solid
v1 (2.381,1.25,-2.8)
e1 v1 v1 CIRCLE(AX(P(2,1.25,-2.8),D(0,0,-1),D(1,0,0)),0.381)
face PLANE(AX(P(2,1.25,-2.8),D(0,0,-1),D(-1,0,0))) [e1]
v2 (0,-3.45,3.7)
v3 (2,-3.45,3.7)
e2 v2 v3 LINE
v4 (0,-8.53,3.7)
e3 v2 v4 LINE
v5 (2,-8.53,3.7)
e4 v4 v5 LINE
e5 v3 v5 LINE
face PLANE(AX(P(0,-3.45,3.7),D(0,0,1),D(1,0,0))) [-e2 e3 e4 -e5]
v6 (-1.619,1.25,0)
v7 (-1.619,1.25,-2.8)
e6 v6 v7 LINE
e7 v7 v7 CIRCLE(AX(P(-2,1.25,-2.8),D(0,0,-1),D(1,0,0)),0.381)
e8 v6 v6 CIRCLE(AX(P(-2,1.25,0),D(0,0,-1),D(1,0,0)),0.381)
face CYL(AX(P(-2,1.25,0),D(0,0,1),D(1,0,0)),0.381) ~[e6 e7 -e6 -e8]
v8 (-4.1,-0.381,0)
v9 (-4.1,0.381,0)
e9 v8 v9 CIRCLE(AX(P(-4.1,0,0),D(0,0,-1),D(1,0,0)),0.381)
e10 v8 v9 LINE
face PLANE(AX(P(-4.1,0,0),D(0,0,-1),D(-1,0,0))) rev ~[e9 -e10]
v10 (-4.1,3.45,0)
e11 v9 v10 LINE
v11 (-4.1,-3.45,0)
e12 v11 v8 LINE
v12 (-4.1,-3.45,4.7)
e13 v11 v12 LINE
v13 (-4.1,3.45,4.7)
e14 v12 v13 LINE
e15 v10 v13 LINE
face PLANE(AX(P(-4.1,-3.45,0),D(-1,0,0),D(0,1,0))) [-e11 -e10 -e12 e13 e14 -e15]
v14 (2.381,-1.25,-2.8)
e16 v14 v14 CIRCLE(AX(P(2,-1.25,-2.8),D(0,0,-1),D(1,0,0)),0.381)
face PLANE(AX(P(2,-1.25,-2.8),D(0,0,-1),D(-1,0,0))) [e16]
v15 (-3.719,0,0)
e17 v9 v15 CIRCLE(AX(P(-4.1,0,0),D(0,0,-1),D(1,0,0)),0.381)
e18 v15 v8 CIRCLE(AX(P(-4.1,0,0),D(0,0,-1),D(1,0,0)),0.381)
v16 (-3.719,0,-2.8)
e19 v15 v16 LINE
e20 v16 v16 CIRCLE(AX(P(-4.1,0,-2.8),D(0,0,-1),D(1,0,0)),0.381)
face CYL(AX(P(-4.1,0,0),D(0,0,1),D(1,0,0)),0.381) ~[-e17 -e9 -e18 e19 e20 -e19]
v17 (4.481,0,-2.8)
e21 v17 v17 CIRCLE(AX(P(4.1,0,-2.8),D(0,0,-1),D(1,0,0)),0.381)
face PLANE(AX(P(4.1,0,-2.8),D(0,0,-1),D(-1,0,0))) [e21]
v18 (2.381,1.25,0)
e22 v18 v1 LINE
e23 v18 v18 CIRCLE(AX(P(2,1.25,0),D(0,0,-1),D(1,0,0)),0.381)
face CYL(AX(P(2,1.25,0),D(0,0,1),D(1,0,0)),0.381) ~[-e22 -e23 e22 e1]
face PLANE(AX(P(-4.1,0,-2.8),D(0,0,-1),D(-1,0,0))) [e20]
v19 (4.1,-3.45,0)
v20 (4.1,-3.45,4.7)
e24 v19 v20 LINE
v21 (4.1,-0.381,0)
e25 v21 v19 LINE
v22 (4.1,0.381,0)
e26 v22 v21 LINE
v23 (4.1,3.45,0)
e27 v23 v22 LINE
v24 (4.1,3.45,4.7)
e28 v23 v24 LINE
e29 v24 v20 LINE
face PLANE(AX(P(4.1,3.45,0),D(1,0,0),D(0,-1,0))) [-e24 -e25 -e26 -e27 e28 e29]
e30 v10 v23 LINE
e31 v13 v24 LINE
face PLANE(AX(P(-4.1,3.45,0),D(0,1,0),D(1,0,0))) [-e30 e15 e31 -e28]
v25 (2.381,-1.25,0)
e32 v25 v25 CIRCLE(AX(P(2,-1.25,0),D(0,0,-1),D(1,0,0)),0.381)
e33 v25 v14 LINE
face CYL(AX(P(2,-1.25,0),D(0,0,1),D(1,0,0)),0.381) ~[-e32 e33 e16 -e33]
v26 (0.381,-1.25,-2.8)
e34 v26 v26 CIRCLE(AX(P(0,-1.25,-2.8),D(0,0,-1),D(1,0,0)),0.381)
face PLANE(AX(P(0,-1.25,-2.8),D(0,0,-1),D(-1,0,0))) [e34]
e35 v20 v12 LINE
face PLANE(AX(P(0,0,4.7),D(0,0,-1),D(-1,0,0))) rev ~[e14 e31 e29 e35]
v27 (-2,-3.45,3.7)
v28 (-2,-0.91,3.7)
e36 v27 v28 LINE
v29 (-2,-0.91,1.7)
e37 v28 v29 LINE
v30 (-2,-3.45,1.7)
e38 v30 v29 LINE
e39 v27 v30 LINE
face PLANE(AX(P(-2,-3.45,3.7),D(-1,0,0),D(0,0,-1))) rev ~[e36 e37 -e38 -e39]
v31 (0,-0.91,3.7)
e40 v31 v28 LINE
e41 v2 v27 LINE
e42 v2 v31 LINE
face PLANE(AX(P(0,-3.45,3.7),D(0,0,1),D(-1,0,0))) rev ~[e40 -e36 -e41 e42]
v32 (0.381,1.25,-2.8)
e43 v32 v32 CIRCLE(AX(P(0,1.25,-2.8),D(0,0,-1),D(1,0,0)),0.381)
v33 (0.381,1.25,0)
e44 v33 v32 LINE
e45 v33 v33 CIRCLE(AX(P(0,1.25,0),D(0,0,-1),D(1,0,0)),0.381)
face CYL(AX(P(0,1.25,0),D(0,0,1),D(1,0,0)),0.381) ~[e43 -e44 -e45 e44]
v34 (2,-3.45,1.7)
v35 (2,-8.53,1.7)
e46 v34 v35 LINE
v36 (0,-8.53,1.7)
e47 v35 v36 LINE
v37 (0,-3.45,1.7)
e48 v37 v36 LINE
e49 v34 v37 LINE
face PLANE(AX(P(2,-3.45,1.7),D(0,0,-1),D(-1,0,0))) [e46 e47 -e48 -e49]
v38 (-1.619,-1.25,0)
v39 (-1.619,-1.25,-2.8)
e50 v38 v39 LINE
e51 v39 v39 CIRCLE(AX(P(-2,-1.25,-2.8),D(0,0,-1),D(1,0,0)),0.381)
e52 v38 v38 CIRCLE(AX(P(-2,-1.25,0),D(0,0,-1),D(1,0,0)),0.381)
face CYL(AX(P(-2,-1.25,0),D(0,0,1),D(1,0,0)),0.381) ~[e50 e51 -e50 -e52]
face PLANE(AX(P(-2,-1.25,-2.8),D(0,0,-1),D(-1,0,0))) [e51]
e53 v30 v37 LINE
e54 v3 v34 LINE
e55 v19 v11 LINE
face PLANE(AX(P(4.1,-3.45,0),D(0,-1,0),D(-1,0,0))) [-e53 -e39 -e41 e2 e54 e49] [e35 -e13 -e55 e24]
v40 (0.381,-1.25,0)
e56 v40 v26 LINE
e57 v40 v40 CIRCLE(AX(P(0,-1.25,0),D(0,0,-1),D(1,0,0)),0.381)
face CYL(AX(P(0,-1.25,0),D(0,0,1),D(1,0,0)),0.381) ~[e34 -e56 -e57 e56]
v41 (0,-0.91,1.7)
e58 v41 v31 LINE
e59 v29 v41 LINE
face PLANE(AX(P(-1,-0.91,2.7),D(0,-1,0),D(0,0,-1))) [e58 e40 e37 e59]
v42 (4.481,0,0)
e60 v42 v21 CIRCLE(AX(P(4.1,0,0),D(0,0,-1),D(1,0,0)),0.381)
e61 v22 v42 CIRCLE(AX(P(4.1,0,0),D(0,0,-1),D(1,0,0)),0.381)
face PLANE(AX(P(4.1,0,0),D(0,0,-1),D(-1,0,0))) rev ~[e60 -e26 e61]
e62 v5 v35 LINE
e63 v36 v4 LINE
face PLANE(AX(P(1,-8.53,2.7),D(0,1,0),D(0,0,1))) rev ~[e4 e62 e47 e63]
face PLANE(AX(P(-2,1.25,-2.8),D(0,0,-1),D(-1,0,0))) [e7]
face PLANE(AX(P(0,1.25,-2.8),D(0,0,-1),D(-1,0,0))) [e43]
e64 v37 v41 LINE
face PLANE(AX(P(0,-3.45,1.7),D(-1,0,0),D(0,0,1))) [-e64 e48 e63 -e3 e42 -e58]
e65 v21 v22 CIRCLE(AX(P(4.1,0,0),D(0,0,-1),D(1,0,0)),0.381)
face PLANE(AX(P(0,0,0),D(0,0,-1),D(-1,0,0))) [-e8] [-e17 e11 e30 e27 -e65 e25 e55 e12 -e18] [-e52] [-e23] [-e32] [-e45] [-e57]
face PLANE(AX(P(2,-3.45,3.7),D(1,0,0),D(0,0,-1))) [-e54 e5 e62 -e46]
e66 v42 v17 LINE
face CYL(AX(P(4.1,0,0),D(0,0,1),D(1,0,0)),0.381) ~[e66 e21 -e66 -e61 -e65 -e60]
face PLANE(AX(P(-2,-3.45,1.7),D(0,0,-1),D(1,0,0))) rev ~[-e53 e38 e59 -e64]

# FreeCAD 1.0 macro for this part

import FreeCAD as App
import Part
import Sketcher
from FreeCAD import Vector


def add_polygon(sketch, points):
    """Adds a closed chain of lines whose ends are joined by coincident constraints."""
    first, n = sketch.GeometryCount, len(points)
    for a, b in zip(points, points[1:] + points[:1]):
        sketch.addGeometry(Part.LineSegment(App.Vector(*a, 0), App.Vector(*b, 0)), False)
    for i in range(n):
        sketch.addConstraint(Sketcher.Constraint("Coincident", first + i, 2, first + (i + 1) % n, 1))

doc = App.newDocument("Part")
body = doc.addObject("PartDesign::Body", "Body")

# Sketch on XY plane
sketch1 = doc.addObject("Sketcher::SketchObject", "Sketch")
body.addObject(sketch1)
sketch1.AttachmentSupport = (doc.XY_Plane, [""])
sketch1.MapMode = "FlatFace"
add_polygon(sketch1, [(-4.1, -3.45), (4.1, -3.45), (4.1, 3.45), (-4.1, 3.45)])  # lines 0-3
sketch1.addConstraint([
    Sketcher.Constraint("Horizontal", 0),
    Sketcher.Constraint("Vertical", 1),
    Sketcher.Constraint("Horizontal", 2),
    Sketcher.Constraint("Vertical", 3),
    Sketcher.Constraint("Symmetric", 0, 2, 2, 2, -1, 1),
    Sketcher.Constraint("DistanceX", 0, 1, 0, 2, 8.2),
    Sketcher.Constraint("DistanceY", 1, 1, 1, 2, 6.9),
])
pad1 = doc.addObject("PartDesign::Pad", "Pad")
body.addObject(pad1)
pad1.Profile = sketch1
pad1.Length = 4.7

# Sketch on XY plane
sketch2 = doc.addObject("Sketcher::SketchObject", "Sketch001")
body.addObject(sketch2)
sketch2.AttachmentSupport = (doc.XY_Plane, [""])
sketch2.MapMode = "FlatFace"
sketch2.addGeometry([
    Part.Circle(Vector(-2, -1.25, 0), Vector(0, 0, 1), 0.381),  # 0
    Part.Circle(Vector(0, -1.25, 0), Vector(0, 0, 1), 0.381),  # 1
    Part.Circle(Vector(2, -1.25, 0), Vector(0, 0, 1), 0.381),  # 2
    Part.Circle(Vector(2, 1.25, 0), Vector(0, 0, 1), 0.381),  # 3
    Part.Circle(Vector(0, 1.25, 0), Vector(0, 0, 1), 0.381),  # 4
    Part.Circle(Vector(-2, 1.25, 0), Vector(0, 0, 1), 0.381),  # 5
    Part.Circle(Vector(-4.1, 0, 0), Vector(0, 0, 1), 0.381),  # 6
    Part.Circle(Vector(4.1, 0, 0), Vector(0, 0, 1), 0.381),  # 7
], False)
sketch2.addConstraint([
    Sketcher.Constraint("Equal", 0, 1),
    Sketcher.Constraint("Equal", 1, 2),
    Sketcher.Constraint("Equal", 2, 3),
    Sketcher.Constraint("Equal", 3, 4),
    Sketcher.Constraint("Equal", 4, 5),
    Sketcher.Constraint("Equal", 5, 6),
    Sketcher.Constraint("Equal", 6, 7),
    Sketcher.Constraint("Symmetric", 0, 3, 3, 3, -1, 1),
    Sketcher.Constraint("Symmetric", 1, 3, 4, 3, -1, 1),
    Sketcher.Constraint("Symmetric", 2, 3, 5, 3, -1, 1),
    Sketcher.Constraint("Symmetric", 6, 3, 7, 3, -1, 1),
    Sketcher.Constraint("Symmetric", 0, 3, 2, 3, -2),
    Sketcher.Constraint("PointOnObject", 1, 3, -2),
    Sketcher.Constraint("PointOnObject", 6, 3, -1),
    Sketcher.Constraint("Horizontal", 0, 3, 1, 3),
    Sketcher.Constraint("Diameter", 0, 0.762),
    Sketcher.Constraint("DistanceX", 0, 3, -1, 1, 2.0),
    Sketcher.Constraint("DistanceX", 6, 3, -1, 1, 4.1),
    Sketcher.Constraint("DistanceY", 2, 3, 3, 3, 2.5),
])
pad2 = doc.addObject("PartDesign::Pad", "Pad001")
body.addObject(pad2)
pad2.Profile = sketch2
pad2.Length = 2.8
pad2.Reversed = True

# Sketch on XZ plane
sketch3 = doc.addObject("Sketcher::SketchObject", "Sketch002")
body.addObject(sketch3)
sketch3.AttachmentSupport = (doc.XZ_Plane, [""])
sketch3.MapMode = "FlatFace"
sketch3.AttachmentOffset = App.Placement(Vector(0, 0, 3.45), App.Rotation())
add_polygon(sketch3, [(0, 1.7), (2, 1.7), (2, 3.7), (0, 3.7)])  # lines 0-3
sketch3.addConstraint([
    Sketcher.Constraint("Horizontal", 0),
    Sketcher.Constraint("Vertical", 1),
    Sketcher.Constraint("Horizontal", 2),
    Sketcher.Constraint("Vertical", 3),
    Sketcher.Constraint("PointOnObject", 2, 2, -2),
    Sketcher.Constraint("Equal", 2, 1),
    Sketcher.Constraint("DistanceX", 0, 1, 0, 2, 2.0),
    Sketcher.Constraint("DistanceY", -1, 1, 0, 2, 1.7),
])
pad3 = doc.addObject("PartDesign::Pad", "Pad002")
body.addObject(pad3)
pad3.Profile = sketch3
pad3.Length = 5.08

# Sketch on XZ plane
sketch4 = doc.addObject("Sketcher::SketchObject", "Sketch003")
body.addObject(sketch4)
sketch4.AttachmentSupport = (doc.XZ_Plane, [""])
sketch4.MapMode = "FlatFace"
sketch4.AttachmentOffset = App.Placement(Vector(0, 0, 3.45), App.Rotation())
add_polygon(sketch4, [(0, 3.7), (-2, 3.7), (-2, 1.7), (0, 1.7)])  # lines 0-3
sketch4.addConstraint([
    Sketcher.Constraint("Horizontal", 0),
    Sketcher.Constraint("Vertical", 1),
    Sketcher.Constraint("Horizontal", 2),
    Sketcher.Constraint("Vertical", 3),
    Sketcher.Constraint("PointOnObject", 2, 2, -2),
    Sketcher.Constraint("Equal", 2, 1),
    Sketcher.Constraint("DistanceX", 0, 2, 0, 1, 2.0),
    Sketcher.Constraint("DistanceY", -1, 1, 0, 2, 3.7),
])
pocket1 = doc.addObject("PartDesign::Pocket", "Pocket")
body.addObject(pocket1)
pocket1.Profile = sketch4
pocket1.Length = 2.54

doc.recompute()
